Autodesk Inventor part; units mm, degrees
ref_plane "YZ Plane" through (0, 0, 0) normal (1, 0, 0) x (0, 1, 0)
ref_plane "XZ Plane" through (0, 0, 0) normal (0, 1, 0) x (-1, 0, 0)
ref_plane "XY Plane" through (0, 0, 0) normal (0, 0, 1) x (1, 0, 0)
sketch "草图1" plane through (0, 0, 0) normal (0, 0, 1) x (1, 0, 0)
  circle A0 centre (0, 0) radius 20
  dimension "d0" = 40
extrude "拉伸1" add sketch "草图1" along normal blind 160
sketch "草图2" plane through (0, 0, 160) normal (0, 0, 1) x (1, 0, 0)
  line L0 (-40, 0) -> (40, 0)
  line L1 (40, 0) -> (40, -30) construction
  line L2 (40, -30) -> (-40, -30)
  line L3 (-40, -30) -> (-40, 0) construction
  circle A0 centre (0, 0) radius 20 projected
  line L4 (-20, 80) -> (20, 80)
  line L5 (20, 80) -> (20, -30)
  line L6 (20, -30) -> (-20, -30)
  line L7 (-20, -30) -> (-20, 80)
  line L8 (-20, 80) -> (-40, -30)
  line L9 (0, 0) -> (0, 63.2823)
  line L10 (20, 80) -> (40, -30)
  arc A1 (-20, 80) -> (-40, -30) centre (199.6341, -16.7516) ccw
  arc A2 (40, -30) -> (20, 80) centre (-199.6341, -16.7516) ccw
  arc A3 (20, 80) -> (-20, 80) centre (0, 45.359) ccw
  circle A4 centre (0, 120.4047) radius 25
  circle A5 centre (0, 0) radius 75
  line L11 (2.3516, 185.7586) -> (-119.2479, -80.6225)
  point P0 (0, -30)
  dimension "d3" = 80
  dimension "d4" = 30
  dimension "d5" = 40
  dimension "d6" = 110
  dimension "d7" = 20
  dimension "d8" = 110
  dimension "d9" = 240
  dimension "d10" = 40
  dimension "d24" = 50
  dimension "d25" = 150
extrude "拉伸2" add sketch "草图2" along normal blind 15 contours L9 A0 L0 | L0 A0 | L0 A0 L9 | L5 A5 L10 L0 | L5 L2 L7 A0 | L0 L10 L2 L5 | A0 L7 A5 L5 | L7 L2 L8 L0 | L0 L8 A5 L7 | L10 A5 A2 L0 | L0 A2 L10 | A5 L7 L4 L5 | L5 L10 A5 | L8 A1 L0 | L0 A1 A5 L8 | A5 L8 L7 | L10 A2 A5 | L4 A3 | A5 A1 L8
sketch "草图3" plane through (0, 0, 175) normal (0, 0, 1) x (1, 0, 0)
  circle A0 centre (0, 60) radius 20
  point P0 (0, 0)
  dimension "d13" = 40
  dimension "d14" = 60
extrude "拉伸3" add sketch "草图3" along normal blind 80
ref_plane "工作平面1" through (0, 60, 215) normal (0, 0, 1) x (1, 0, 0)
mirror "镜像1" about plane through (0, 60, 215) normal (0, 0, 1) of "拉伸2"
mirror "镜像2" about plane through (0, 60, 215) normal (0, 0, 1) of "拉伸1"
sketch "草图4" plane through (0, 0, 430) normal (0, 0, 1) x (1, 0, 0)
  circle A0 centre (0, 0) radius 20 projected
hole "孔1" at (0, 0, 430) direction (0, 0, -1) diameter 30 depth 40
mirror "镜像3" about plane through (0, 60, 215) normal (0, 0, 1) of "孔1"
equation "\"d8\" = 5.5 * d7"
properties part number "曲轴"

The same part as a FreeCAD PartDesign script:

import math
import FreeCAD as App
import Part
import Sketcher
Q = App.Units.Quantity

doc = App.newDocument("Part")
body = doc.addObject("PartDesign::Body", "Body")

# Sketch on XY plane
sketch1 = body.newObject("Sketcher::SketchObject", "Sketch")
sketch1.AttachmentSupport = (doc.getObject("XY_Plane"), [""])
sketch1.MapMode = "FlatFace"
sketch1.addGeometry(Part.Circle(App.Vector(0, 0, 0), App.Vector(0, 0, 1), 20), False)
sketch1.addConstraint(Sketcher.Constraint("Coincident", 0, 3, -1, 1))
sketch1.addConstraint(Sketcher.Constraint("Diameter", 0, Q("40 mm")))
pad1 = body.newObject("PartDesign::Pad", "Pad")
pad1.Profile = sketch1
pad1.Length = 160

# Sketch on XY plane
sketch2 = body.newObject("Sketcher::SketchObject", "Sketch001")
sketch2.AttachmentSupport = (doc.getObject("XY_Plane"), [""])
sketch2.MapMode = "FlatFace"
sketch2.AttachmentOffset = App.Placement(App.Vector(0, 0, 160), App.Rotation())
sketch2.addGeometry(Part.ArcOfCircle(Part.Circle(App.Vector(-200, -17, 0), App.Vector(0, 0, 1), 240), math.radians(-3), math.radians(24)), False)
sketch2.addGeometry(Part.ArcOfCircle(Part.Circle(App.Vector(0, 45, 0), App.Vector(0, 0, 1), 40), math.radians(60), math.radians(120)), False)
sketch2.addGeometry(Part.ArcOfCircle(Part.Circle(App.Vector(200, -17, 0), App.Vector(0, 0, 1), 240), math.radians(156), math.radians(183)), False)
sketch2.addGeometry(Part.LineSegment(App.Vector(-40, -30, 0), App.Vector(40, -30, 0)), False)
sketch2.addConstraint(Sketcher.Constraint("Coincident", 0, 2, 1, 1))
sketch2.addConstraint(Sketcher.Constraint("Coincident", 1, 2, 2, 1))
sketch2.addConstraint(Sketcher.Constraint("Coincident", 2, 2, 3, 1))
sketch2.addConstraint(Sketcher.Constraint("Coincident", 3, 2, 0, 1))
sketch2.addConstraint(Sketcher.Constraint("Horizontal", 3))
sketch2.addConstraint(Sketcher.Constraint("Equal", 0, 2))
sketch2.addConstraint(Sketcher.Constraint("Symmetric", 0, 3, 2, 3, -2))
sketch2.addConstraint(Sketcher.Constraint("PointOnObject", 1, 3, -2))
sketch2.addConstraint(Sketcher.Constraint("Radius", 0, Q("240 mm")))
sketch2.addConstraint(Sketcher.Constraint("Radius", 1, Q("40 mm")))
sketch2.addConstraint(Sketcher.Constraint("DistanceX", 3, 1, 3, 2, Q("80 mm")))
sketch2.addConstraint(Sketcher.Constraint("DistanceX", -1, 1, 0, 2, Q("20 mm")))
sketch2.addConstraint(Sketcher.Constraint("DistanceY", -1, 1, 0, 2, Q("80 mm")))
sketch2.addConstraint(Sketcher.Constraint("DistanceY", 2, 2, -1, 1, Q("30 mm")))
pad2 = body.newObject("PartDesign::Pad", "Pad001")
pad2.Profile = sketch2
pad2.Length = 15

# Sketch on XY plane
sketch3 = body.newObject("Sketcher::SketchObject", "Sketch002")
sketch3.AttachmentSupport = (doc.getObject("XY_Plane"), [""])
sketch3.MapMode = "FlatFace"
sketch3.AttachmentOffset = App.Placement(App.Vector(0, 0, 175), App.Rotation())
sketch3.addGeometry(Part.Circle(App.Vector(0, 60, 0), App.Vector(0, 0, 1), 20), False)
sketch3.addConstraint(Sketcher.Constraint("PointOnObject", 0, 3, -2))
sketch3.addConstraint(Sketcher.Constraint("Diameter", 0, Q("40 mm")))
sketch3.addConstraint(Sketcher.Constraint("DistanceY", -1, 1, 0, 3, Q("60 mm")))
pad3 = body.newObject("PartDesign::Pad", "Pad002")
pad3.Profile = sketch3
pad3.Length = 80
doc.recompute()

datumplane = body.newObject("PartDesign::Plane", "DatumPlane")
datumplane.AttachmentSupport = (doc.getObject("XY_Plane"), [""])
datumplane.MapMode = "FlatFace"
datumplane.AttachmentOffset = App.Placement(App.Vector(0, 0, 215), App.Rotation())
mirrored = body.newObject("PartDesign::Mirrored", "Mirrored")
mirrored.Originals = [pad2]
mirrored.MirrorPlane = (datumplane, [""])
body.Tip = mirrored
doc.recompute()

datumplane2 = body.newObject("PartDesign::Plane", "DatumPlane001")
datumplane2.AttachmentSupport = (doc.getObject("XY_Plane"), [""])
datumplane2.MapMode = "FlatFace"
datumplane2.AttachmentOffset = App.Placement(App.Vector(0, 0, 215), App.Rotation())
mirrored2 = body.newObject("PartDesign::Mirrored", "Mirrored001")
mirrored2.Originals = [pad1]
mirrored2.MirrorPlane = (datumplane2, [""])
body.Tip = mirrored2

# Sketch on XY plane
sketch4 = body.newObject("Sketcher::SketchObject", "Sketch003")
sketch4.AttachmentSupport = (doc.getObject("XY_Plane"), [""])
sketch4.MapMode = "FlatFace"
sketch4.AttachmentOffset = App.Placement(App.Vector(0, 0, 430), App.Rotation())
sketch4.addGeometry(Part.Circle(App.Vector(0, 0, 0), App.Vector(0, 0, 1), 15), False)
sketch4.addConstraint(Sketcher.Constraint("Coincident", 0, 3, -1, 1))
sketch4.addConstraint(Sketcher.Constraint("Diameter", 0, Q("30 mm")))
doc.recompute()
hole = body.newObject("PartDesign::Hole", "Hole")
hole.Profile = sketch4
hole.ThreadType = "None"
hole.Diameter = 30
hole.DepthType = "Dimension"
hole.Depth = 40
hole.DrillPoint = "Flat"
doc.recompute()

datumplane3 = body.newObject("PartDesign::Plane", "DatumPlane002")
datumplane3.AttachmentSupport = (doc.getObject("XY_Plane"), [""])
datumplane3.MapMode = "FlatFace"
datumplane3.AttachmentOffset = App.Placement(App.Vector(0, 0, 215), App.Rotation())
mirrored3 = body.newObject("PartDesign::Mirrored", "Mirrored002")
mirrored3.Originals = [hole]
mirrored3.MirrorPlane = (datumplane3, [""])
body.Tip = mirrored3

doc.recompute()
